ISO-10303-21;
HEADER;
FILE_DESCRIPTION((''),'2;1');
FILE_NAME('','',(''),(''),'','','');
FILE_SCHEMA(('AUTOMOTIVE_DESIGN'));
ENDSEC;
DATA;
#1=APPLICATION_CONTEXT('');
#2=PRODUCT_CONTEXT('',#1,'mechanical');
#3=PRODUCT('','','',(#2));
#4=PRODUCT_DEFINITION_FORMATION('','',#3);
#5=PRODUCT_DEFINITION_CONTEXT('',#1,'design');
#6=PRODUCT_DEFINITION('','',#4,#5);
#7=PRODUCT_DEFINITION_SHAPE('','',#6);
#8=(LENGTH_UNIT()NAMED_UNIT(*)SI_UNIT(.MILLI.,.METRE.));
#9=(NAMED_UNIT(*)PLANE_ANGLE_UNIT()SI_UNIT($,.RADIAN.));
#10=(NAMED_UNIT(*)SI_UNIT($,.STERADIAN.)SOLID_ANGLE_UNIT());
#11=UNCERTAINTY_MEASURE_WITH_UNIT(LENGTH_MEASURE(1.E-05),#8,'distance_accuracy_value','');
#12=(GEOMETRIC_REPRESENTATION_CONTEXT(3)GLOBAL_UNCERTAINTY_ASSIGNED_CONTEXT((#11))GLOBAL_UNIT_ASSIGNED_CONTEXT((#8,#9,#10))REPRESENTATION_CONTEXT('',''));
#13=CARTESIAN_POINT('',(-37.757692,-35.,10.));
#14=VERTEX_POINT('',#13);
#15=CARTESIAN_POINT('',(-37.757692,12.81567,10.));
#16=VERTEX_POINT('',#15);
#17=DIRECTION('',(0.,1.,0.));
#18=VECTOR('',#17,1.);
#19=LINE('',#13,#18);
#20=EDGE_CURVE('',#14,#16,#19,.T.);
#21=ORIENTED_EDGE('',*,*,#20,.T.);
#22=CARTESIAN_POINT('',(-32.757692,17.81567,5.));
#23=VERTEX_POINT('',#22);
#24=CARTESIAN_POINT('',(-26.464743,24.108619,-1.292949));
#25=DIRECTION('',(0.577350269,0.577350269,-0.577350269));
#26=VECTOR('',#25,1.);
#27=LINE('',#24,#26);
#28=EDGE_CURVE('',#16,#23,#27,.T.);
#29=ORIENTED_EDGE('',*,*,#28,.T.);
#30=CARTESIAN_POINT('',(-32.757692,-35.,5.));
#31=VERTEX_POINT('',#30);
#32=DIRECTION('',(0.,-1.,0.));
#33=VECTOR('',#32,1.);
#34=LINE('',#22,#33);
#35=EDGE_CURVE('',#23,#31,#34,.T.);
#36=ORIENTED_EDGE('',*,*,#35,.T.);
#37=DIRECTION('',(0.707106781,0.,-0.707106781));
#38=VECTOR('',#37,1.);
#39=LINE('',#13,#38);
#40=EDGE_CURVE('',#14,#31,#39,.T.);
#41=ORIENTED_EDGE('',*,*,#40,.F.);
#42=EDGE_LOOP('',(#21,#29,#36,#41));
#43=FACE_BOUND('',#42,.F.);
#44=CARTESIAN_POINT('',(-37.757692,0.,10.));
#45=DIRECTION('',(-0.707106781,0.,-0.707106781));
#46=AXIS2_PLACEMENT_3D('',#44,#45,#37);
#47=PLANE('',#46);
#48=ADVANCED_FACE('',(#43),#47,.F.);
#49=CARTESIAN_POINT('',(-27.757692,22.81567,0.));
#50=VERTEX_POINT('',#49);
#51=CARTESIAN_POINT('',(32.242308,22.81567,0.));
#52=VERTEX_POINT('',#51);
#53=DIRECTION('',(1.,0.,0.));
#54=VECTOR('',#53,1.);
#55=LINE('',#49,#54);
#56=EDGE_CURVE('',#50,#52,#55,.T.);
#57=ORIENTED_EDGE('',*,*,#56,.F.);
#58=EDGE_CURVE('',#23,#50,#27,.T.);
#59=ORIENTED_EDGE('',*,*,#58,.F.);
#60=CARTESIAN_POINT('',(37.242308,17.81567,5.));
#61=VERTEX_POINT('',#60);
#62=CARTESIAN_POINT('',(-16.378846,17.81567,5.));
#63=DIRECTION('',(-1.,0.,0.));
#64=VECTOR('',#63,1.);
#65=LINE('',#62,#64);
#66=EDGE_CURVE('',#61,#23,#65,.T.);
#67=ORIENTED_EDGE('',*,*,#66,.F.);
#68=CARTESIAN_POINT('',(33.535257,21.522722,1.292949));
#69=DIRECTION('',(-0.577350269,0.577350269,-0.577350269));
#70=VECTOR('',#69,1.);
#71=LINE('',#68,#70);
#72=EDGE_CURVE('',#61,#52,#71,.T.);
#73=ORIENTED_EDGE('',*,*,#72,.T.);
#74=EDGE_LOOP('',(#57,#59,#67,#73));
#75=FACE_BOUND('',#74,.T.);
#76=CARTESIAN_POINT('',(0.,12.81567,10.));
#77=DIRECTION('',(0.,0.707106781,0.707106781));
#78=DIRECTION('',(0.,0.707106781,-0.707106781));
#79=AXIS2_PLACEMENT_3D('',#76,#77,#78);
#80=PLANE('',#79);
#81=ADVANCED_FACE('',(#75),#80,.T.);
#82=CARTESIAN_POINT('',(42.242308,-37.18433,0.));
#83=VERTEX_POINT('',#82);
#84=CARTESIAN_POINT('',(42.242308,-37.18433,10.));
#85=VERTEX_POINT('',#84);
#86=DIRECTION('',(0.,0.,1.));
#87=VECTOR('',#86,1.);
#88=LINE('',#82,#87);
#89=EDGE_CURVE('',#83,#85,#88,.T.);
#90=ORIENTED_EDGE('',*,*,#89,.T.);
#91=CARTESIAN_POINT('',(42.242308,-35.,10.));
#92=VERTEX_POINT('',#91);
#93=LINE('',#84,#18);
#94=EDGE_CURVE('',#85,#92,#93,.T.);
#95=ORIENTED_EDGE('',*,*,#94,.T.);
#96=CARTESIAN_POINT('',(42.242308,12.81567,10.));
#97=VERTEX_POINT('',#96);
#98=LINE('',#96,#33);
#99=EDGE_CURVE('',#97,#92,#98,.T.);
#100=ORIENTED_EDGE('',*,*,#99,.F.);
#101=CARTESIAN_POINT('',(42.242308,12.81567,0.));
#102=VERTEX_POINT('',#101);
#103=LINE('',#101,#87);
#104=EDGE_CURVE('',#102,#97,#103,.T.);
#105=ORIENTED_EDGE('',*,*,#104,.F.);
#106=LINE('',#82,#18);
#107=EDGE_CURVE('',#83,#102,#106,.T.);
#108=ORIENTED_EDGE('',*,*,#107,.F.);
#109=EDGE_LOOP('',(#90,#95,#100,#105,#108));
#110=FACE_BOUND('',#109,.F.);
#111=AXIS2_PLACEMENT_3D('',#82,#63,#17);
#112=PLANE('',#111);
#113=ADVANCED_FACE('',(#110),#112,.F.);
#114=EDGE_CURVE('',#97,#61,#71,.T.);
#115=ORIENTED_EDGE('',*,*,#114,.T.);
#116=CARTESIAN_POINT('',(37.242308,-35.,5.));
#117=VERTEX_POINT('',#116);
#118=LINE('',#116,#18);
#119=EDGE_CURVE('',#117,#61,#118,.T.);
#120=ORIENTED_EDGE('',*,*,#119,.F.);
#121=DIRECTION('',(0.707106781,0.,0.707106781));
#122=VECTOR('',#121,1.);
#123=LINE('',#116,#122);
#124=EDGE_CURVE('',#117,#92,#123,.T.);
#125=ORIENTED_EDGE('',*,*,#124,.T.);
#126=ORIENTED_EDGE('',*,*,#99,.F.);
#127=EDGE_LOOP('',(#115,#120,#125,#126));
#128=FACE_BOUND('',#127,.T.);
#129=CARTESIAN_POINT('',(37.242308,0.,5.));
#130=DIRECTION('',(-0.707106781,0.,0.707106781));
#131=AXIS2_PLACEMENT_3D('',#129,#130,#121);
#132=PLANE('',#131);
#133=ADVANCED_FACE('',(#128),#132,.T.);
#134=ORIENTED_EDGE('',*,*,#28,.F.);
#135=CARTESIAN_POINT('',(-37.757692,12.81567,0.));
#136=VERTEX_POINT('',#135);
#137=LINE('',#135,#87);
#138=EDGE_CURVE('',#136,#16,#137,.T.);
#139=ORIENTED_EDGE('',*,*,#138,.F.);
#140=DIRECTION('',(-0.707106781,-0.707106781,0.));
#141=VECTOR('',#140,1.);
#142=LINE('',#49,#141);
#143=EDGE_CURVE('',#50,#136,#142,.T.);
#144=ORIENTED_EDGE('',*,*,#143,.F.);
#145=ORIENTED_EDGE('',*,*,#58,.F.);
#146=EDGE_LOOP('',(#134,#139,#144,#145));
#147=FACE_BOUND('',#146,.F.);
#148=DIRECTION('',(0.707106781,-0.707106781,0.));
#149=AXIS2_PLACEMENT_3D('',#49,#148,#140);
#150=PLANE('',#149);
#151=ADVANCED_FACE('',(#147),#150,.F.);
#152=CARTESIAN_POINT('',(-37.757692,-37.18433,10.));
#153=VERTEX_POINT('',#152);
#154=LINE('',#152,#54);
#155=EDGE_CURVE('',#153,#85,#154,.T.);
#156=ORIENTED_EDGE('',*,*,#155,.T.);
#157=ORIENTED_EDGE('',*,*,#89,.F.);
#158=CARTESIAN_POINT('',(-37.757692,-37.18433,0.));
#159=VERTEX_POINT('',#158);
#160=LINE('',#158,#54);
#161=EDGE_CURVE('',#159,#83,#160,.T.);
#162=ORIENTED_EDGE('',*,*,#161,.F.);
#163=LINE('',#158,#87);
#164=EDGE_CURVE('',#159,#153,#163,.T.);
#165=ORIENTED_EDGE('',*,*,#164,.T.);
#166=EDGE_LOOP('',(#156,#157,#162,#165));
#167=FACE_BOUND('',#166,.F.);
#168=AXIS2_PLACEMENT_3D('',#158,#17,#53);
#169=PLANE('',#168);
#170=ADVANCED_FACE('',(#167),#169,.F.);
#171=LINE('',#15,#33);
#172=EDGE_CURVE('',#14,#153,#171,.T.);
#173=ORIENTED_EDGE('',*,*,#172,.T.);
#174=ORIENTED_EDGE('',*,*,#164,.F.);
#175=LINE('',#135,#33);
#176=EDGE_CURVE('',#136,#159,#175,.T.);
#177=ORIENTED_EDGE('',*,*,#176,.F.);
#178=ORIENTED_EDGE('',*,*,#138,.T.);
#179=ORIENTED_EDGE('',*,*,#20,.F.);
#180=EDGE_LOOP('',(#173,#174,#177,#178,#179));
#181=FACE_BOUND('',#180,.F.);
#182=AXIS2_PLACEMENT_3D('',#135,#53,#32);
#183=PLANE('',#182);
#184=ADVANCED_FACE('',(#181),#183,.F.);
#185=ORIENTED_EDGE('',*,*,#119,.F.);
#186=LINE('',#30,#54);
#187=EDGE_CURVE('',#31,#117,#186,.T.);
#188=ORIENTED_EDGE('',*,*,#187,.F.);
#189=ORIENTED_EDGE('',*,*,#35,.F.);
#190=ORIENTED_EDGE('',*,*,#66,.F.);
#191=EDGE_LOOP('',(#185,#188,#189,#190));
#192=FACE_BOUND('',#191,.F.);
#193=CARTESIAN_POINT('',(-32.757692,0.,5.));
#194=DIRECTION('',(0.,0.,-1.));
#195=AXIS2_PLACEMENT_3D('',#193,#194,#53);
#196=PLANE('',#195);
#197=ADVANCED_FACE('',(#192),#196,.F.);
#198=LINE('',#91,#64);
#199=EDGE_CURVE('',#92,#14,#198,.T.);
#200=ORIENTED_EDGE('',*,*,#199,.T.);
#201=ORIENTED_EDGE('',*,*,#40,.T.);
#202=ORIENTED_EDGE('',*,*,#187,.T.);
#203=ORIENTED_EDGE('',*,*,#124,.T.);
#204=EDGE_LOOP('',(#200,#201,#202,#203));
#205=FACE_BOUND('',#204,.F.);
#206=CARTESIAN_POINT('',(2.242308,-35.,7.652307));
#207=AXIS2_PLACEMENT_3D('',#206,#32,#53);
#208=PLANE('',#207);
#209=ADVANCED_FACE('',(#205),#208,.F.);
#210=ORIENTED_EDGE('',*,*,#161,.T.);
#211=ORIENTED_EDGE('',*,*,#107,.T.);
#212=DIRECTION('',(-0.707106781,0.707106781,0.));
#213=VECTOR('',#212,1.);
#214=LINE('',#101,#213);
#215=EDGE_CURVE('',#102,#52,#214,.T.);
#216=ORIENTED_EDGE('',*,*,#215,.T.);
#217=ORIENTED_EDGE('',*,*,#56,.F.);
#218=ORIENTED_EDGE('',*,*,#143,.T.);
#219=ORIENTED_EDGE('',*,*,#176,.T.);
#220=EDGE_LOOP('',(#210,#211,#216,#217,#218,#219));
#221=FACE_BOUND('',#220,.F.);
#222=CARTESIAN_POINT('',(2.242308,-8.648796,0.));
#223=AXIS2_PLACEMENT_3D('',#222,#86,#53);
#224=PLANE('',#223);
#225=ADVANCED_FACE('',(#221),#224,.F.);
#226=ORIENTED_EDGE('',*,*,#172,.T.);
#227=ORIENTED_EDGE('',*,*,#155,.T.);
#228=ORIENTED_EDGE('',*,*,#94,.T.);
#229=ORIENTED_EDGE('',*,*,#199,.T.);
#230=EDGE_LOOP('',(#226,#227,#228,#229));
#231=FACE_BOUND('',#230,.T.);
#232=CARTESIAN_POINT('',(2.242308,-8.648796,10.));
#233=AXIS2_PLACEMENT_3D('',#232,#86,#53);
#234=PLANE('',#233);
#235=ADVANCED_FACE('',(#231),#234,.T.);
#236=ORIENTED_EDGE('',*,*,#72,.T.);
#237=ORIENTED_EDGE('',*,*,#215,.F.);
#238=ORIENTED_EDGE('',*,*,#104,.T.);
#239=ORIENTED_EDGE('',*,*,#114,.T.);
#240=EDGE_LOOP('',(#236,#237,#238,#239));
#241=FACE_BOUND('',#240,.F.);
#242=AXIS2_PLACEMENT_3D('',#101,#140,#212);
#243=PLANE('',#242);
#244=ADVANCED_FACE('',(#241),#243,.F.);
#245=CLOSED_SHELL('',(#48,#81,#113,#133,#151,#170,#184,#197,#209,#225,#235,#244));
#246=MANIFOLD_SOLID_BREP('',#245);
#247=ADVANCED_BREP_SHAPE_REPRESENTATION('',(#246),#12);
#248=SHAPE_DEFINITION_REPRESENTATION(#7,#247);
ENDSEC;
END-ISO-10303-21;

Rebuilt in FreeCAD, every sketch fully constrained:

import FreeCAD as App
import Part
import Sketcher

V = App.Vector

doc = App.newDocument("Part")
body = doc.addObject("PartDesign::Body", "Body")

sketch1 = body.newObject("Sketcher::SketchObject", "Sketch")
sketch1.AttachmentSupport = (doc.getObject("XY_Plane"), [""])
sketch1.MapMode = "FlatFace"
sketch1.addGeometry(Part.LineSegment(V(32, 23, 0), V(-28, 23, 0)), False)
sketch1.addGeometry(Part.LineSegment(V(-28, 23, 0), V(-38, 13, 0)), False)
sketch1.addGeometry(Part.LineSegment(V(-38, 13, 0), V(-38, -37, 0)), False)
sketch1.addGeometry(Part.LineSegment(V(-38, -37, 0), V(42, -37, 0)), False)
sketch1.addGeometry(Part.LineSegment(V(42, -37, 0), V(42, 13, 0)), False)
sketch1.addGeometry(Part.LineSegment(V(42, 13, 0), V(32, 23, 0)), False)
sketch1.addConstraint(Sketcher.Constraint("Coincident", 0, 2, 1, 1))
sketch1.addConstraint(Sketcher.Constraint("Coincident", 1, 2, 2, 1))
sketch1.addConstraint(Sketcher.Constraint("Coincident", 2, 2, 3, 1))
sketch1.addConstraint(Sketcher.Constraint("Coincident", 3, 2, 4, 1))
sketch1.addConstraint(Sketcher.Constraint("Coincident", 4, 2, 5, 1))
sketch1.addConstraint(Sketcher.Constraint("Coincident", 5, 2, 0, 1))
sketch1.addConstraint(Sketcher.Constraint("Horizontal", 0))
sketch1.addConstraint(Sketcher.Constraint("Vertical", 2))
sketch1.addConstraint(Sketcher.Constraint("Horizontal", 3))
sketch1.addConstraint(Sketcher.Constraint("Vertical", 4))
sketch1.addConstraint(Sketcher.Constraint("Perpendicular", 1, 5))
sketch1.addConstraint(Sketcher.Constraint("Horizontal", 1, 2, 4, 2))
sketch1.addConstraint(Sketcher.Constraint("Equal", 1, 5))
sketch1.addConstraint(Sketcher.Constraint("DistanceX", 0, 2, 0, 1, 60.0))
sketch1.addConstraint(Sketcher.Constraint("DistanceX", 3, 1, 3, 2, 80.0))
sketch1.addConstraint(Sketcher.Constraint("DistanceY", 2, 2, 2, 1, 50.0))
sketch1.addConstraint(Sketcher.Constraint("DistanceX", 0, 2, -1, 1, 27.757692))
sketch1.addConstraint(Sketcher.Constraint("DistanceY", -1, 1, 0, 2, 22.81567))
pad1 = body.newObject("PartDesign::Pad", "Pad")
pad1.Profile = sketch1
pad1.Length = 10

sketch2 = body.newObject("Sketcher::SketchObject", "Sketch001")
sketch2.AttachmentSupport = (doc.getObject("YZ_Plane"), [""])
sketch2.MapMode = "FlatFace"
sketch2.addGeometry(Part.LineSegment(V(23, 0, 0), V(23, 10, 0)), False)
sketch2.addGeometry(Part.LineSegment(V(23, 10, 0), V(13, 10, 0)), False)
sketch2.addGeometry(Part.LineSegment(V(13, 10, 0), V(23, 0, 0)), False)
sketch2.addConstraint(Sketcher.Constraint("Coincident", 0, 2, 1, 1))
sketch2.addConstraint(Sketcher.Constraint("Coincident", 1, 2, 2, 1))
sketch2.addConstraint(Sketcher.Constraint("Coincident", 2, 2, 0, 1))
sketch2.addConstraint(Sketcher.Constraint("Vertical", 0))
sketch2.addConstraint(Sketcher.Constraint("Horizontal", 1))
sketch2.addConstraint(Sketcher.Constraint("PointOnObject", 2, 2, -1))
sketch2.addConstraint(Sketcher.Constraint("Equal", 1, 0))
sketch2.addConstraint(Sketcher.Constraint("DistanceX", 1, 2, 1, 1, 10.0))
sketch2.addConstraint(Sketcher.Constraint("DistanceX", -1, 1, 0, 2, 22.81567))
pocket1 = body.newObject("PartDesign::Pocket", "Pocket")
pocket1.Profile = sketch2
pocket1.Type = "ThroughAll"
pocket1.Reversed = True

sketch3 = body.newObject("Sketcher::SketchObject", "Sketch002")
sketch3.AttachmentSupport = (doc.getObject("YZ_Plane"), [""])
sketch3.MapMode = "FlatFace"
sketch3.addGeometry(Part.LineSegment(V(23, 0, 0), V(23, 10, 0)), False)
sketch3.addGeometry(Part.LineSegment(V(23, 10, 0), V(13, 10, 0)), False)
sketch3.addGeometry(Part.LineSegment(V(13, 10, 0), V(23, 0, 0)), False)
sketch3.addConstraint(Sketcher.Constraint("Coincident", 0, 2, 1, 1))
sketch3.addConstraint(Sketcher.Constraint("Coincident", 1, 2, 2, 1))
sketch3.addConstraint(Sketcher.Constraint("Coincident", 2, 2, 0, 1))
sketch3.addConstraint(Sketcher.Constraint("Vertical", 0))
sketch3.addConstraint(Sketcher.Constraint("Horizontal", 1))
sketch3.addConstraint(Sketcher.Constraint("PointOnObject", 2, 2, -1))
sketch3.addConstraint(Sketcher.Constraint("Equal", 1, 0))
sketch3.addConstraint(Sketcher.Constraint("DistanceX", 1, 2, 1, 1, 10.0))
sketch3.addConstraint(Sketcher.Constraint("DistanceX", -1, 1, 0, 2, 22.81567))
pocket2 = body.newObject("PartDesign::Pocket", "Pocket001")
pocket2.Profile = sketch3
pocket2.Type = "ThroughAll"

sketch4 = body.newObject("Sketcher::SketchObject", "Sketch003")
sketch4.AttachmentSupport = (doc.getObject("XZ_Plane"), [""])
sketch4.MapMode = "FlatFace"
sketch4.addGeometry(Part.LineSegment(V(37, 5, 0), V(42, 10, 0)), False)
sketch4.addGeometry(Part.LineSegment(V(42, 10, 0), V(-38, 10, 0)), False)
sketch4.addGeometry(Part.LineSegment(V(-38, 10, 0), V(-33, 5, 0)), False)
sketch4.addGeometry(Part.LineSegment(V(-33, 5, 0), V(37, 5, 0)), False)
sketch4.addConstraint(Sketcher.Constraint("Coincident", 0, 2, 1, 1))
sketch4.addConstraint(Sketcher.Constraint("Coincident", 1, 2, 2, 1))
sketch4.addConstraint(Sketcher.Constraint("Coincident", 2, 2, 3, 1))
sketch4.addConstraint(Sketcher.Constraint("Coincident", 3, 2, 0, 1))
sketch4.addConstraint(Sketcher.Constraint("Horizontal", 1))
sketch4.addConstraint(Sketcher.Constraint("Horizontal", 3))
sketch4.addConstraint(Sketcher.Constraint("Perpendicular", 0, 2))
sketch4.addConstraint(Sketcher.Constraint("Equal", 0, 2))
sketch4.addConstraint(Sketcher.Constraint("DistanceX", 1, 2, 1, 1, 80.0))
sketch4.addConstraint(Sketcher.Constraint("DistanceX", 3, 1, 3, 2, 70.0))
sketch4.addConstraint(Sketcher.Constraint("DistanceY", -1, 1, 0, 2, 10.0))
sketch4.addConstraint(Sketcher.Constraint("DistanceX", -1, 1, 0, 2, 42.242308))
pocket3 = body.newObject("PartDesign::Pocket", "Pocket002")
pocket3.Profile = sketch4
pocket3.Length = 35
pocket3.Reversed = True

sketch5 = body.newObject("Sketcher::SketchObject", "Sketch004")
sketch5.AttachmentSupport = (doc.getObject("XZ_Plane"), [""])
sketch5.MapMode = "FlatFace"
sketch5.addGeometry(Part.LineSegment(V(37, 5, 0), V(42, 10, 0)), False)
sketch5.addGeometry(Part.LineSegment(V(42, 10, 0), V(-38, 10, 0)), False)
sketch5.addGeometry(Part.LineSegment(V(-38, 10, 0), V(-33, 5, 0)), False)
sketch5.addGeometry(Part.LineSegment(V(-33, 5, 0), V(37, 5, 0)), False)
sketch5.addConstraint(Sketcher.Constraint("Coincident", 0, 2, 1, 1))
sketch5.addConstraint(Sketcher.Constraint("Coincident", 1, 2, 2, 1))
sketch5.addConstraint(Sketcher.Constraint("Coincident", 2, 2, 3, 1))
sketch5.addConstraint(Sketcher.Constraint("Coincident", 3, 2, 0, 1))
sketch5.addConstraint(Sketcher.Constraint("Horizontal", 1))
sketch5.addConstraint(Sketcher.Constraint("Horizontal", 3))
sketch5.addConstraint(Sketcher.Constraint("Perpendicular", 0, 2))
sketch5.addConstraint(Sketcher.Constraint("Equal", 0, 2))
sketch5.addConstraint(Sketcher.Constraint("DistanceX", 1, 2, 1, 1, 80.0))
sketch5.addConstraint(Sketcher.Constraint("DistanceX", 3, 1, 3, 2, 70.0))
sketch5.addConstraint(Sketcher.Constraint("DistanceY", -1, 1, 0, 2, 10.0))
sketch5.addConstraint(Sketcher.Constraint("DistanceX", -1, 1, 0, 2, 42.242308))
pocket4 = body.newObject("PartDesign::Pocket", "Pocket003")
pocket4.Profile = sketch5
pocket4.Length = 25

doc.recompute()
